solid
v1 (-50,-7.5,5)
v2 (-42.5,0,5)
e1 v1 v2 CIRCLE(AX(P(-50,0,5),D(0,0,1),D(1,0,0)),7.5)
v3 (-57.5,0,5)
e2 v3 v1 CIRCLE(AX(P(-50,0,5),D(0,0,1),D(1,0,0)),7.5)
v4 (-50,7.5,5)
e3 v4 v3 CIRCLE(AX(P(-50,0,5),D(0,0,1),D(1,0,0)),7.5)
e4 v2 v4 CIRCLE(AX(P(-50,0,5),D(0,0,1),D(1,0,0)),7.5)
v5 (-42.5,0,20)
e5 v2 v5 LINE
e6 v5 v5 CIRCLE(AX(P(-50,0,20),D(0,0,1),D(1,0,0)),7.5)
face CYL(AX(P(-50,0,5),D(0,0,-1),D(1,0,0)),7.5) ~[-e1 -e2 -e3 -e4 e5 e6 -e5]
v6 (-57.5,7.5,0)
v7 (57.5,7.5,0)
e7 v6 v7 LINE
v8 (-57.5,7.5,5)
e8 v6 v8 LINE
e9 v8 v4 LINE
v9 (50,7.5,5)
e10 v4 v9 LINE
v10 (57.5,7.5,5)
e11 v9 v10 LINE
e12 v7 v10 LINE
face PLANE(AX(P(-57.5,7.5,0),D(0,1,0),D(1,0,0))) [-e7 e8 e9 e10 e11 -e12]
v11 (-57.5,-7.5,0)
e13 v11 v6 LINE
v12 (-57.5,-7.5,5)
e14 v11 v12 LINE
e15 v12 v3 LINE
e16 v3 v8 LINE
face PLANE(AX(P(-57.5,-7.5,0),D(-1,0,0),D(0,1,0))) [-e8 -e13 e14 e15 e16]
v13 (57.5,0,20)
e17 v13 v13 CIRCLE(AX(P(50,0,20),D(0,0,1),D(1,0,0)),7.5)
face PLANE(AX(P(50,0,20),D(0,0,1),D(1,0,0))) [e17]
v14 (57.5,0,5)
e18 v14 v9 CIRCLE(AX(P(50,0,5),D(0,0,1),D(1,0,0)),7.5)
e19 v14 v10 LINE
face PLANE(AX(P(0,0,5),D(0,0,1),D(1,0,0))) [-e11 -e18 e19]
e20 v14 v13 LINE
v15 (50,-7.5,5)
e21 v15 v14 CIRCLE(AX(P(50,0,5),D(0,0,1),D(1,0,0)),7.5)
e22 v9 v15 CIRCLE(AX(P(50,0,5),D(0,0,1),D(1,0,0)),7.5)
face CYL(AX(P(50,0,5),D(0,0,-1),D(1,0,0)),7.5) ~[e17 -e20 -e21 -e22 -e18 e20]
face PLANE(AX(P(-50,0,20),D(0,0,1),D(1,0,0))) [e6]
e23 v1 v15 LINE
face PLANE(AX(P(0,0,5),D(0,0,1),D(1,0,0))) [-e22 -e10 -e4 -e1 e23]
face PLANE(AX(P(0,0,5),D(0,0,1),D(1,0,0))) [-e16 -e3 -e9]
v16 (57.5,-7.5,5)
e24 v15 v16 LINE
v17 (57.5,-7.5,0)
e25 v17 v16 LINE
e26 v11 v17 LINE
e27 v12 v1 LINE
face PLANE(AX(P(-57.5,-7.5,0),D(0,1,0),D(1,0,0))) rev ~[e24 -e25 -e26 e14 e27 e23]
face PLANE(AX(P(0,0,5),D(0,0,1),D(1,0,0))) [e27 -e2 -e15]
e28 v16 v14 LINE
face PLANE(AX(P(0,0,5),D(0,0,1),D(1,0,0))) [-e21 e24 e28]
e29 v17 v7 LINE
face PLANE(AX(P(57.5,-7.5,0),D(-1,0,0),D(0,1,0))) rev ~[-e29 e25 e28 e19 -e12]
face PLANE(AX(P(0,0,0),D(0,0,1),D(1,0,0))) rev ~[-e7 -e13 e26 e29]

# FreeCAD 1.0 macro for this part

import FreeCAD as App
import Part
import Sketcher

V = App.Vector


def add_polygon(sketch, points):
    """Adds a closed chain of lines whose ends are joined by coincident constraints."""
    first, n = sketch.GeometryCount, len(points)
    for a, b in zip(points, points[1:] + points[:1]):
        sketch.addGeometry(Part.LineSegment(App.Vector(*a, 0), App.Vector(*b, 0)), False)
    for i in range(n):
        sketch.addConstraint(Sketcher.Constraint("Coincident", first + i, 2, first + (i + 1) % n, 1))

doc = App.newDocument("Part")
body = doc.addObject("PartDesign::Body", "Body")

# Sketch on XY plane
sketch1 = body.newObject("Sketcher::SketchObject", "Sketch")
sketch1.AttachmentSupport = (doc.getObject("XY_Plane"), [""])
sketch1.MapMode = "FlatFace"
add_polygon(sketch1, [(-57.5, 7.5), (-57.5, -7.5), (57.5, -7.5), (57.5, 7.5)])  # lines 0-3
sketch1.addConstraint(Sketcher.Constraint("Vertical", 0))
sketch1.addConstraint(Sketcher.Constraint("Horizontal", 1))
sketch1.addConstraint(Sketcher.Constraint("Vertical", 2))
sketch1.addConstraint(Sketcher.Constraint("Horizontal", 3))
sketch1.addConstraint(Sketcher.Constraint("Symmetric", 0, 2, 2, 2, -1, 1))
sketch1.addConstraint(Sketcher.Constraint("DistanceX", 1, 1, 1, 2, 115.0))
sketch1.addConstraint(Sketcher.Constraint("DistanceY", 0, 2, 0, 1, 15.0))
pad1 = body.newObject("PartDesign::Pad", "Pad")
pad1.Profile = sketch1
pad1.Length = 5

# Sketch on XY plane
sketch2 = body.newObject("Sketcher::SketchObject", "Sketch001")
sketch2.AttachmentSupport = (doc.getObject("XY_Plane"), [""])
sketch2.MapMode = "FlatFace"
sketch2.AttachmentOffset = App.Placement(V(0, 0, 5), App.Rotation())
sketch2.addGeometry(Part.Circle(V(-50, 0, 0), V(0, 0, 1), 7.5), False)
sketch2.addGeometry(Part.Circle(V(50, 0, 0), V(0, 0, 1), 7.5), False)
sketch2.addConstraint(Sketcher.Constraint("Equal", 0, 1))
sketch2.addConstraint(Sketcher.Constraint("Symmetric", 0, 3, 1, 3, -1, 1))
sketch2.addConstraint(Sketcher.Constraint("PointOnObject", 0, 3, -1))
sketch2.addConstraint(Sketcher.Constraint("Diameter", 0, 15.0))
sketch2.addConstraint(Sketcher.Constraint("DistanceX", 0, 3, -1, 1, 50.0))
pad2 = body.newObject("PartDesign::Pad", "Pad001")
pad2.Profile = sketch2
pad2.Length = 15

doc.recompute()
